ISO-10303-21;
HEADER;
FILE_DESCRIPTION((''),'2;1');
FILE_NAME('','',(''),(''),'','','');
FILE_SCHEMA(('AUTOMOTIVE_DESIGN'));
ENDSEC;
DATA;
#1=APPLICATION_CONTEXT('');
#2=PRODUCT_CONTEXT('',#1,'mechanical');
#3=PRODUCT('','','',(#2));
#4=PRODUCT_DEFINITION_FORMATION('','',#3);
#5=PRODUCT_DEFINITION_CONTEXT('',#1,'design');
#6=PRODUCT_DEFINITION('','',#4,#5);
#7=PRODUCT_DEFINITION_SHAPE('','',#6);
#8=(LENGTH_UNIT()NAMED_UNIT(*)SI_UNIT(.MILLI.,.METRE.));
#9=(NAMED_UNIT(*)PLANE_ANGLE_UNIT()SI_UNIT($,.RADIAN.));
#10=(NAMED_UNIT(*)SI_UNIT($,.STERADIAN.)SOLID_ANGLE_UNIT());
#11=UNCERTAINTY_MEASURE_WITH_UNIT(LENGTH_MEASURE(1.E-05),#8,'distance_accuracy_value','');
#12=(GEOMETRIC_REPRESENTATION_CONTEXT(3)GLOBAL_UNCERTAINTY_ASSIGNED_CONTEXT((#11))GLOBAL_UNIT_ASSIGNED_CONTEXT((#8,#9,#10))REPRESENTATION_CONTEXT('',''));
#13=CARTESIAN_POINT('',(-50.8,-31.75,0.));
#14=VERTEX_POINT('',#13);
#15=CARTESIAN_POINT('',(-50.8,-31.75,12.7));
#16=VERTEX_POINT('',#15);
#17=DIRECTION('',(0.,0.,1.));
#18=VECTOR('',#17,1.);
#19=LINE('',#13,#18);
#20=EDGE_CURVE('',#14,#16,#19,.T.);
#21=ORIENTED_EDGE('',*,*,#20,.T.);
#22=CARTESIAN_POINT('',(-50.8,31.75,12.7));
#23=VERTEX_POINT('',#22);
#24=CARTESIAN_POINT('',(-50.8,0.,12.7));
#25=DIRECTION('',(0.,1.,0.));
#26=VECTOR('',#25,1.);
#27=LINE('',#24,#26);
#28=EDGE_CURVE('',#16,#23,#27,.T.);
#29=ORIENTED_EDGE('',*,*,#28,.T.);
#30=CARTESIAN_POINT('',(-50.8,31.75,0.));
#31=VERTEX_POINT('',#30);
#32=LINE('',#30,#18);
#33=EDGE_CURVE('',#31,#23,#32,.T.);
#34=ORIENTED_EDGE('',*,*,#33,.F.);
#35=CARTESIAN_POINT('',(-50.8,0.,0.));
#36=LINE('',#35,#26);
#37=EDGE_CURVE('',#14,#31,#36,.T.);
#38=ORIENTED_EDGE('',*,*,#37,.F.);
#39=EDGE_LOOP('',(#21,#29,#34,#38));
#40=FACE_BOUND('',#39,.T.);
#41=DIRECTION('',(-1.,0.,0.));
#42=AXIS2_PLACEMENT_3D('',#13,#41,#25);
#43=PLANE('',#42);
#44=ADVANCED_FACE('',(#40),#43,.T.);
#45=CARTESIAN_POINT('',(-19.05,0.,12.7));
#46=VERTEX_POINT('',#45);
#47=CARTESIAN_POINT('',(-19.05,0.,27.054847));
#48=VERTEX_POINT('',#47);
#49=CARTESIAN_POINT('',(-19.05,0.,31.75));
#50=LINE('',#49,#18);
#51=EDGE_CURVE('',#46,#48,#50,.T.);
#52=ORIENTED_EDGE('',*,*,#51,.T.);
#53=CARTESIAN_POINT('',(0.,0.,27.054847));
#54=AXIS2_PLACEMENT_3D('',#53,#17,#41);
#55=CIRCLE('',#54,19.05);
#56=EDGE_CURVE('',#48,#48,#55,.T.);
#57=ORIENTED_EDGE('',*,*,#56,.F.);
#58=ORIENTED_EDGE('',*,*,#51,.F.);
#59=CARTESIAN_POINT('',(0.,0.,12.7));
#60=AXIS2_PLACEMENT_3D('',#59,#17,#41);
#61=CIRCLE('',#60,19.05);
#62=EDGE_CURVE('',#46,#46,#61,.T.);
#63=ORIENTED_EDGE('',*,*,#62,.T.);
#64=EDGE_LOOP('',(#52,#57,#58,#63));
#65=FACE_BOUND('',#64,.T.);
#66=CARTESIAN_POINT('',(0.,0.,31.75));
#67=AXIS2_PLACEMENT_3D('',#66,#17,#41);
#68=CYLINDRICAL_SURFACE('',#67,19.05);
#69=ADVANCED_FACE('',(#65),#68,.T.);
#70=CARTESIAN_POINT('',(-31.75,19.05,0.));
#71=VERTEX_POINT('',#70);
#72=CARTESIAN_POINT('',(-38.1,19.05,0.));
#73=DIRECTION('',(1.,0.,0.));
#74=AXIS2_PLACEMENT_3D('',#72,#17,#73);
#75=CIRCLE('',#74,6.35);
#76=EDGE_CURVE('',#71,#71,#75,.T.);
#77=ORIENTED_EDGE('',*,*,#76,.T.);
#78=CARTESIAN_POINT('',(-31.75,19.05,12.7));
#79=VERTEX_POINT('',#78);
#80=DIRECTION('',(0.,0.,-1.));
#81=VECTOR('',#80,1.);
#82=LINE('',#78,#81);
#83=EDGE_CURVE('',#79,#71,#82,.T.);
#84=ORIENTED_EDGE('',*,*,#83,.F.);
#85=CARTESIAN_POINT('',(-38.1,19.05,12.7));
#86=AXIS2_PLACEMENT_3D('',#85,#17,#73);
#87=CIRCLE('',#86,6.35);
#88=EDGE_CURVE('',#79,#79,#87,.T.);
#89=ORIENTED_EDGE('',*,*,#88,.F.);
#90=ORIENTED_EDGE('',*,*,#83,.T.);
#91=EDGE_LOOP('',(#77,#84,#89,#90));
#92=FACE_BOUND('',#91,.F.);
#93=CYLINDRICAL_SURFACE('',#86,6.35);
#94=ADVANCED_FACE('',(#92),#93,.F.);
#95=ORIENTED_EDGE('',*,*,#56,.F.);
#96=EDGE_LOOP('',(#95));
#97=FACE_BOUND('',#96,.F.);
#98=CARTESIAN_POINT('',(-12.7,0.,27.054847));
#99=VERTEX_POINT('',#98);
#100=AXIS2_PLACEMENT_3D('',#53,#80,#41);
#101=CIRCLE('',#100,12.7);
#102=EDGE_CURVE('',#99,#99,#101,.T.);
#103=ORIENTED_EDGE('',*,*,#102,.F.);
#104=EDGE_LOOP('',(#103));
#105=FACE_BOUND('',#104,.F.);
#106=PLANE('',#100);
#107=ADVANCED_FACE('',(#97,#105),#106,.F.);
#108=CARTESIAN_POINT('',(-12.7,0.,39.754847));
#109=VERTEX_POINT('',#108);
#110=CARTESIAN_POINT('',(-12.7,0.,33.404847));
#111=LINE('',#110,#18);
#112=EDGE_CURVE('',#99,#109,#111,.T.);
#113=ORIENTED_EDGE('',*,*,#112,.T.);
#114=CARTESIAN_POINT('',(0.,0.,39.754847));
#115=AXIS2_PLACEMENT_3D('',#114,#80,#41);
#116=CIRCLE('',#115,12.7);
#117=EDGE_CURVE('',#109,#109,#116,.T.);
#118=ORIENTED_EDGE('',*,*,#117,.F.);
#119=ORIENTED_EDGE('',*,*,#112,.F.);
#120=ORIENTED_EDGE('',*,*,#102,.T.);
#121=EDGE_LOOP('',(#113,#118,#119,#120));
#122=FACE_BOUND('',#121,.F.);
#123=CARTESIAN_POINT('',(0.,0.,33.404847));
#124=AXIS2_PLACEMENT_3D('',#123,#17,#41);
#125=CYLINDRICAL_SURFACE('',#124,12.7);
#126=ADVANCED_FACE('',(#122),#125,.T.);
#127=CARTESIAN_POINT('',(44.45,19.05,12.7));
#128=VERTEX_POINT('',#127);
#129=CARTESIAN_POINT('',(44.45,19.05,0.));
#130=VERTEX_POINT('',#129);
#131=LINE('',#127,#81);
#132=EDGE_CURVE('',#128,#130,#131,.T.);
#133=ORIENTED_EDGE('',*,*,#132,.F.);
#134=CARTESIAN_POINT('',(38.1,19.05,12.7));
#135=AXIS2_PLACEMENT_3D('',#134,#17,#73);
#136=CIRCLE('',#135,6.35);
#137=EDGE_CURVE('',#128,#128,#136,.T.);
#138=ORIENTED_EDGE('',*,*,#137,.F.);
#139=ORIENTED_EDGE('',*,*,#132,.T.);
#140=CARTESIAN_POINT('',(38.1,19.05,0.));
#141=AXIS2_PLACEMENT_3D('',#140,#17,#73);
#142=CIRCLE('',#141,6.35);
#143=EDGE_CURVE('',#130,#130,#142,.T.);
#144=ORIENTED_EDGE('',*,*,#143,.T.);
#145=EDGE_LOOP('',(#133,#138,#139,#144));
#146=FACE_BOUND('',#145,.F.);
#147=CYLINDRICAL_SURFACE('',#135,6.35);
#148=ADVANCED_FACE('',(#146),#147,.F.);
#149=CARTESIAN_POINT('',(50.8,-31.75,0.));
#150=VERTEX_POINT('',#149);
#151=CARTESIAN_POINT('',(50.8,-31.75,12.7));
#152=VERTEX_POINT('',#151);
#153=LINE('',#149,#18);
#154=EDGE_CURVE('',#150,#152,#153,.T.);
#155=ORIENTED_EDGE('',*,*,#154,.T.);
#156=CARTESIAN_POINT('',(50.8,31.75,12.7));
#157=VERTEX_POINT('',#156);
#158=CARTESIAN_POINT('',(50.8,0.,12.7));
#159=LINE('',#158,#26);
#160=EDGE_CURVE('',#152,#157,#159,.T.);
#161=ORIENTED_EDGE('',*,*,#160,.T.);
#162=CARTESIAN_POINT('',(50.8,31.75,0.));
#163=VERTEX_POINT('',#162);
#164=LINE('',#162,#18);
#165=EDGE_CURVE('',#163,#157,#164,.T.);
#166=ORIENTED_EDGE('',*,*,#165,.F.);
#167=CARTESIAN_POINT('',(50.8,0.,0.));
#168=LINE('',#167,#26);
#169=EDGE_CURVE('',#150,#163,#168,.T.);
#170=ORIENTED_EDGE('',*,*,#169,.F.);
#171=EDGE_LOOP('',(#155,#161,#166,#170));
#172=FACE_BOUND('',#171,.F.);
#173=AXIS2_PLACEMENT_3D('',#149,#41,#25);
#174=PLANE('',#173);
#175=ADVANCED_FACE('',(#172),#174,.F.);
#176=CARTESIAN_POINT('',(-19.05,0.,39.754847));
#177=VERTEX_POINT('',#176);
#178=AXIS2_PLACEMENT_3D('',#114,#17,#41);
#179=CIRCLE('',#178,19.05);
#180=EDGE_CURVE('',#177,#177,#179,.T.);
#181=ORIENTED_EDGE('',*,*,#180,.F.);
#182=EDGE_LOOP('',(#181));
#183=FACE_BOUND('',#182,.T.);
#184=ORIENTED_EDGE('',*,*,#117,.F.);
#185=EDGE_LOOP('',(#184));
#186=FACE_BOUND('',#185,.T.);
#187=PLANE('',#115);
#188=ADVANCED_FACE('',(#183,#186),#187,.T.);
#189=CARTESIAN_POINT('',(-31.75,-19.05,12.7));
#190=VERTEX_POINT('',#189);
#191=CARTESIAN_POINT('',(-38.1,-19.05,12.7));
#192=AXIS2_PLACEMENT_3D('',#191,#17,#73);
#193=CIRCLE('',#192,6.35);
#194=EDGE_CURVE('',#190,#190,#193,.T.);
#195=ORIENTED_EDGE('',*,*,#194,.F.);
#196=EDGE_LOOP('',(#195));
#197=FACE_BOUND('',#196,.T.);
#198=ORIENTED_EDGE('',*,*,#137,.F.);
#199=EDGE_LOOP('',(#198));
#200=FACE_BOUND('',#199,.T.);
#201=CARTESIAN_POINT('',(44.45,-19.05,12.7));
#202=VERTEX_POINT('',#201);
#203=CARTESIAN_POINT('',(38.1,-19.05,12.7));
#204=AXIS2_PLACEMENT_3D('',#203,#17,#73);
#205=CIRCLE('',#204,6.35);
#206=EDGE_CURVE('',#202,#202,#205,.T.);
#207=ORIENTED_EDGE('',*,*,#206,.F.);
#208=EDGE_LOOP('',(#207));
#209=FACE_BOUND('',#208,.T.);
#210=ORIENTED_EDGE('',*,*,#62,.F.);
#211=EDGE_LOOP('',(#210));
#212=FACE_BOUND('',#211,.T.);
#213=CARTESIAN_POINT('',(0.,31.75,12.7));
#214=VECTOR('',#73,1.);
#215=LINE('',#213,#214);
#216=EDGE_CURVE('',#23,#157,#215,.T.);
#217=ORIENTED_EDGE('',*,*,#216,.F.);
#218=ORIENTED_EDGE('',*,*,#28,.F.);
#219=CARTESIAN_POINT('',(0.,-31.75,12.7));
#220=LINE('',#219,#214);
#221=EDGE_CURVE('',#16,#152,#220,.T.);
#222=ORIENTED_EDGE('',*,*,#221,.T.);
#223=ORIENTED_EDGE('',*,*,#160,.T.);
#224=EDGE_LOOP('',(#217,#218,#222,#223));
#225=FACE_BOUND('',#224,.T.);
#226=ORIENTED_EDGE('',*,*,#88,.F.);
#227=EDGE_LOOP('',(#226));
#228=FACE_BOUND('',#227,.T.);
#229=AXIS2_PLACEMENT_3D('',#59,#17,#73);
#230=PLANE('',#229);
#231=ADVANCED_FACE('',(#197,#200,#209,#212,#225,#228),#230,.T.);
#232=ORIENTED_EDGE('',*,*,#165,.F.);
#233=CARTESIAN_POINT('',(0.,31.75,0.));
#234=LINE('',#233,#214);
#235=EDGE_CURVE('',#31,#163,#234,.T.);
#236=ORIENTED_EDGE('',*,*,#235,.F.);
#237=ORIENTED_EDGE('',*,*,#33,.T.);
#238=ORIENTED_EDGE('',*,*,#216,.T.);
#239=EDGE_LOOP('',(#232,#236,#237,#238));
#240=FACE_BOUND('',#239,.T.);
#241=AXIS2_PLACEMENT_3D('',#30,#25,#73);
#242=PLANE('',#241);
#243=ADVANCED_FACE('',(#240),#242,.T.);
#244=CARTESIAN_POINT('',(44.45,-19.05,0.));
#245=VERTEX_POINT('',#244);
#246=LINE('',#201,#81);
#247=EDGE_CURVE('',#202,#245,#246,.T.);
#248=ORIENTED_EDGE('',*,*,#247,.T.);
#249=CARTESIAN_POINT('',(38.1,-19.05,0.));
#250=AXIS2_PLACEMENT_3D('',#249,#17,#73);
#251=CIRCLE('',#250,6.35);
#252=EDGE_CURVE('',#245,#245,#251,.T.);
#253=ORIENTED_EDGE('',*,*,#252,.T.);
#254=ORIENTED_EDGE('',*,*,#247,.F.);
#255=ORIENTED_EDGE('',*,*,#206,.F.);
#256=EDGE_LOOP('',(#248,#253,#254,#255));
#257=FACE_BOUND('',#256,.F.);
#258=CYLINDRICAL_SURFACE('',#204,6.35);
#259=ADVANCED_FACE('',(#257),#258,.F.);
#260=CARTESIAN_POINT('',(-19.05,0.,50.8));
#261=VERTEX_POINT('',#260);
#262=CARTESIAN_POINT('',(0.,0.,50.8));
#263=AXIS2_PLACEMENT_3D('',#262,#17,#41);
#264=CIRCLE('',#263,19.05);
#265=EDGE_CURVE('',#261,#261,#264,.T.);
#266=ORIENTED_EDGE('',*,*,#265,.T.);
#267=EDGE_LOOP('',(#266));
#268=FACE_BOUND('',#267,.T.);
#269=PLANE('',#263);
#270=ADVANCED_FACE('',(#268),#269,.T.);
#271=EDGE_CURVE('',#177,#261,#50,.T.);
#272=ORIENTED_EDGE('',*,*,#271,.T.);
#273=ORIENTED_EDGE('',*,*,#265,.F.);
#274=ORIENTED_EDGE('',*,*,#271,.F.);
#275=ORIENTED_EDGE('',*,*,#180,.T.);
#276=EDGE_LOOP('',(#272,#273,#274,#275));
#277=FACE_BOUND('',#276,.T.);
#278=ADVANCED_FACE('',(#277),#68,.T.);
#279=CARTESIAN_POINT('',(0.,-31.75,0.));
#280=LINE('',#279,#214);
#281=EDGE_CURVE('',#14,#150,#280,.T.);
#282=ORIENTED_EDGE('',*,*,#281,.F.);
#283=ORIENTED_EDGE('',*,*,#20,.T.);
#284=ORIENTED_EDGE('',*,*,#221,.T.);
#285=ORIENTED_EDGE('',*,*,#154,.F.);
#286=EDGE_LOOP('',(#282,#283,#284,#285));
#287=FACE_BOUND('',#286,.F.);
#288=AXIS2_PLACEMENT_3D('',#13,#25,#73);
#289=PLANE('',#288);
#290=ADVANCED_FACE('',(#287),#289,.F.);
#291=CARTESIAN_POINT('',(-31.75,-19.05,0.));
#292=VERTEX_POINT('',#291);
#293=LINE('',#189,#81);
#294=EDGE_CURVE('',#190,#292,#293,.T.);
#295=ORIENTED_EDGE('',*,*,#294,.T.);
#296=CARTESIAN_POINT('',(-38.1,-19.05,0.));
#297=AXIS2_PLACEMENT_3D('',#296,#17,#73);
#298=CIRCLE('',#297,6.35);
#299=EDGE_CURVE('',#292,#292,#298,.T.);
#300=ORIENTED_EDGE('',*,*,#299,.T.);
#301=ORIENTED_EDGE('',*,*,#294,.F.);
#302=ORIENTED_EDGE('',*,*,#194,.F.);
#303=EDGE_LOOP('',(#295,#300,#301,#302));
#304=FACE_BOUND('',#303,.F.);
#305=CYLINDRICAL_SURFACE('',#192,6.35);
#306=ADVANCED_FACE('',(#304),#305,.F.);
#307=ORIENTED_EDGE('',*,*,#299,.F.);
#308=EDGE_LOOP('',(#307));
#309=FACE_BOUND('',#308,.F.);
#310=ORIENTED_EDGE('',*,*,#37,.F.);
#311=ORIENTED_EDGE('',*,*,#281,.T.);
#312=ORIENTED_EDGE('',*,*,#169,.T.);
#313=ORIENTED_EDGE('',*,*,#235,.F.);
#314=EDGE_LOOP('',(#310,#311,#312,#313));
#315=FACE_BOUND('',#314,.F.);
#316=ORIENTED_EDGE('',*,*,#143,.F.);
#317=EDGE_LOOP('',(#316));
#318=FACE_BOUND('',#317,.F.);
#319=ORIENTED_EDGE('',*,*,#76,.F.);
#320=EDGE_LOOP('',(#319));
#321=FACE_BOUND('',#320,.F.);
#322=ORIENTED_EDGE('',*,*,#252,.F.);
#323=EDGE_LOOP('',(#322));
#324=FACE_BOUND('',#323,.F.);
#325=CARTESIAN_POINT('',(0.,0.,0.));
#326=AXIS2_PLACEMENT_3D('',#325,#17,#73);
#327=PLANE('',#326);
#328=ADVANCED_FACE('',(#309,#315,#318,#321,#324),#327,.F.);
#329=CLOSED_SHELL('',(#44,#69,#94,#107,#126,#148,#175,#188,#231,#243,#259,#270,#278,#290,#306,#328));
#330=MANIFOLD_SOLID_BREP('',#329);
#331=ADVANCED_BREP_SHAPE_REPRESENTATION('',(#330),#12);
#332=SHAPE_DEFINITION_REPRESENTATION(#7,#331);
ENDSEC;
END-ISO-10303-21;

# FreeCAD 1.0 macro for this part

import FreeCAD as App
import Part
import Sketcher

V = App.Vector
Q = App.Units.Quantity

doc = App.newDocument("Part")
body = doc.addObject("PartDesign::Body", "Body")

sketch1 = body.newObject("Sketcher::SketchObject", "Sketch")
sketch1.AttachmentSupport = (doc.getObject("XY_Plane"), [""])
sketch1.MapMode = "FlatFace"
sketch1.addGeometry([
    Part.LineSegment(V(-51, 32, 0), V(-51, -32, 0)),
    Part.LineSegment(V(-51, -32, 0), V(51, -32, 0)),
    Part.LineSegment(V(51, -32, 0), V(51, 32, 0)),
    Part.LineSegment(V(51, 32, 0), V(-51, 32, 0)),
], False)
sketch1.addConstraint([
    Sketcher.Constraint("Coincident", 0, 2, 1, 1),
    Sketcher.Constraint("Coincident", 1, 2, 2, 1),
    Sketcher.Constraint("Coincident", 2, 2, 3, 1),
    Sketcher.Constraint("Coincident", 3, 2, 0, 1),
    Sketcher.Constraint("Vertical", 0),
    Sketcher.Constraint("Horizontal", 1),
    Sketcher.Constraint("Vertical", 2),
    Sketcher.Constraint("Horizontal", 3),
    Sketcher.Constraint("Symmetric", 0, 2, 2, 2, -1, 1),
    Sketcher.Constraint("DistanceX", 1, 1, 1, 2, Q("4 in")),
    Sketcher.Constraint("DistanceY", 0, 2, 0, 1, Q("2.5 in")),
])
pad1 = body.newObject("PartDesign::Pad", "Pad")
pad1.Profile = sketch1
pad1.Length = Q("0.5 in")

sketch2 = body.newObject("Sketcher::SketchObject", "Sketch001")
sketch2.AttachmentSupport = (doc.getObject("XY_Plane"), [""])
sketch2.MapMode = "FlatFace"
sketch2.AttachmentOffset = App.Placement(V(0, 0, 0.5 * 25.4), App.Rotation())
sketch2.addGeometry([
    Part.Circle(V(-38, 19, 0), V(0, 0, 1), 6),
    Part.Circle(V(-38, -19, 0), V(0, 0, 1), 6),
    Part.Circle(V(38, -19, 0), V(0, 0, 1), 6),
    Part.Circle(V(38, 19, 0), V(0, 0, 1), 6),
], False)
sketch2.addConstraint([
    Sketcher.Constraint("Equal", 0, 1),
    Sketcher.Constraint("Equal", 1, 2),
    Sketcher.Constraint("Equal", 2, 3),
    Sketcher.Constraint("Symmetric", 0, 3, 2, 3, -1, 1),
    Sketcher.Constraint("Symmetric", 1, 3, 3, 3, -1, 1),
    Sketcher.Constraint("Symmetric", 1, 3, 2, 3, -2),
    Sketcher.Constraint("Diameter", 0, Q("0.5 in")),
    Sketcher.Constraint("DistanceX", 1, 3, 2, 3, Q("3 in")),
    Sketcher.Constraint("DistanceY", 1, 3, 0, 3, Q("1.5 in")),
])
pocket1 = body.newObject("PartDesign::Pocket", "Pocket")
pocket1.Profile = sketch2
pocket1.Length = Q("1 in")

sketch3 = body.newObject("Sketcher::SketchObject", "Sketch002")
sketch3.AttachmentSupport = (doc.getObject("XZ_Plane"), [""])
sketch3.MapMode = "FlatFace"
sketch3.addGeometry([
    Part.LineSegment(V(-19, 51, 0), V(-19, 13, 0)),
    Part.LineSegment(V(-19, 13, 0), V(0, 13, 0)),
    Part.LineSegment(V(0, 13, 0), V(0, 51, 0)),
    Part.LineSegment(V(0, 51, 0), V(-19, 51, 0)),
], False)
sketch3.addConstraint([
    Sketcher.Constraint("Coincident", 0, 2, 1, 1),
    Sketcher.Constraint("Coincident", 1, 2, 2, 1),
    Sketcher.Constraint("Coincident", 2, 2, 3, 1),
    Sketcher.Constraint("Coincident", 3, 2, 0, 1),
    Sketcher.Constraint("Vertical", 0),
    Sketcher.Constraint("Horizontal", 1),
    Sketcher.Constraint("Vertical", 2),
    Sketcher.Constraint("Horizontal", 3),
    Sketcher.Constraint("PointOnObject", 1, 2, -2),
    Sketcher.Constraint("DistanceY", 0, 2, 0, 1, Q("1.5 in")),
    Sketcher.Constraint("DistanceY", -1, 1, 2, 2, Q("2 in")),
    Sketcher.Constraint("DistanceX", 1, 1, 1, 2, Q("0.75 in")),
])
revolution = body.newObject("PartDesign::Revolution", "Revolution")
revolution.Profile = sketch3
revolution.ReferenceAxis = (sketch3, ["V_Axis"])
revolution.Angle = 360

sketch4 = body.newObject("Sketcher::SketchObject", "Sketch003")
sketch4.AttachmentSupport = (doc.getObject("XZ_Plane"), [""])
sketch4.MapMode = "FlatFace"
sketch4.addGeometry([
    Part.LineSegment(V(-25, 40, 0), V(-25, 27, 0)),
    Part.LineSegment(V(-25, 27, 0), V(-13, 27, 0)),
    Part.LineSegment(V(-13, 27, 0), V(-13, 40, 0)),
    Part.LineSegment(V(-13, 40, 0), V(-25, 40, 0)),
], False)
sketch4.addConstraint([
    Sketcher.Constraint("Coincident", 0, 2, 1, 1),
    Sketcher.Constraint("Coincident", 1, 2, 2, 1),
    Sketcher.Constraint("Coincident", 2, 2, 3, 1),
    Sketcher.Constraint("Coincident", 3, 2, 0, 1),
    Sketcher.Constraint("Vertical", 0),
    Sketcher.Constraint("Horizontal", 1),
    Sketcher.Constraint("Vertical", 2),
    Sketcher.Constraint("Horizontal", 3),
    Sketcher.Constraint("Equal", 3, 0),
    Sketcher.Constraint("DistanceX", 1, 1, 1, 2, Q("0.5 in")),
    Sketcher.Constraint("DistanceX", 0, 2, -1, 1, Q("1 in")),
    Sketcher.Constraint("DistanceY", -1, 1, 0, 2, Q("27.054847 mm")),
])
groove = body.newObject("PartDesign::Groove", "Groove")
groove.Profile = sketch4
groove.ReferenceAxis = (sketch4, ["V_Axis"])
groove.Angle = 360

doc.recompute()
